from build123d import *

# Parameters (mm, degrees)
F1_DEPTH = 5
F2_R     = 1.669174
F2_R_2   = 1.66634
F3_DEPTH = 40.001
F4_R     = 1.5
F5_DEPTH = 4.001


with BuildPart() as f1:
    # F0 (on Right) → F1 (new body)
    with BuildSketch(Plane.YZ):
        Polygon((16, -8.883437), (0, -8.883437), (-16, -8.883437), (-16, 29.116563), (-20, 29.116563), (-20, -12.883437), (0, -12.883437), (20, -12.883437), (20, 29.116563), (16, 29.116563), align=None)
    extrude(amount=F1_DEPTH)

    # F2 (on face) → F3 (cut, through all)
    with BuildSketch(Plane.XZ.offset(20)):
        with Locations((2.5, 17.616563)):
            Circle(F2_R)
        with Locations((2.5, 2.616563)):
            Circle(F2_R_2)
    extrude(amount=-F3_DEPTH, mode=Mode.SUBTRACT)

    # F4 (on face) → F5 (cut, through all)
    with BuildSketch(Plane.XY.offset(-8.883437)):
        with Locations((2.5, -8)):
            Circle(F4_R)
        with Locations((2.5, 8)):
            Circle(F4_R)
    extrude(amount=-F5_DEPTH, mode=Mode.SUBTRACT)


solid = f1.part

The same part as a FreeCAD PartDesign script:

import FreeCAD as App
import Part
import Sketcher


def add_polygon(sketch, points):
    """Adds a closed chain of lines whose ends are joined by coincident constraints."""
    first, n = sketch.GeometryCount, len(points)
    for a, b in zip(points, points[1:] + points[:1]):
        sketch.addGeometry(Part.LineSegment(App.Vector(*a, 0), App.Vector(*b, 0)), False)
    for i in range(n):
        sketch.addConstraint(Sketcher.Constraint("Coincident", first + i, 2, first + (i + 1) % n, 1))

doc = App.newDocument("Part")
params = doc.addObject("Spreadsheet::Sheet", "Params")
for row, (alias, value) in enumerate([
    ("sketch1_width", "32 mm"),
    ("sketch1_width2", "4 mm"),
    ("sketch1_height", "38 mm"),
    ("sketch1_height2", "42 mm"),
    ("pad1_length", "5 mm"),
    ("sketch3_diameter", "3 mm"),
], start=1):
    params.set(f"A{row}", alias)
    params.set(f"B{row}", "=" + value)
    params.setAlias(f"B{row}", alias)

body = doc.addObject("PartDesign::Body", "Body")

# Sketch on YZ plane
sketch1 = body.newObject("Sketcher::SketchObject", "Sketch")
sketch1.AttachmentSupport = (doc.getObject("YZ_Plane"), [""])
sketch1.MapMode = "FlatFace"
add_polygon(sketch1, [(16, -8.9), (-16, -8.9), (-16, 29.1), (-20, 29.1), (-20, -12.9), (20, -12.9), (20, 29.1), (16, 29.1)])  # lines 0-7
sketch1.addConstraint([
    Sketcher.Constraint("Horizontal", 0),
    Sketcher.Constraint("Vertical", 1),
    Sketcher.Constraint("Horizontal", 2),
    Sketcher.Constraint("Vertical", 3),
    Sketcher.Constraint("Horizontal", 4),
    Sketcher.Constraint("Vertical", 5),
    Sketcher.Constraint("Horizontal", 6),
    Sketcher.Constraint("Vertical", 7),
    Sketcher.Constraint("Symmetric", 2, 2, 5, 2, -2),
    Sketcher.Constraint("Equal", 2, 6),
    Sketcher.Constraint("DistanceX", 0, 2, 0, 1, 32.0),
    Sketcher.Constraint("DistanceX", 2, 2, 2, 1, 4.0),
    Sketcher.Constraint("DistanceY", 1, 1, 1, 2, 38.0),
    Sketcher.Constraint("DistanceY", 3, 2, 3, 1, 42.0),
    Sketcher.Constraint("DistanceY", 0, 2, -1, 1, 8.883437),
])
sketch1.setExpression("Constraints[18]", "Params.sketch1_width")
sketch1.setExpression("Constraints[19]", "Params.sketch1_width2")
sketch1.setExpression("Constraints[20]", "Params.sketch1_height")
sketch1.setExpression("Constraints[21]", "Params.sketch1_height2")
pad1 = body.newObject("PartDesign::Pad", "Pad")
pad1.Profile = sketch1
pad1.setExpression("Length", "Params.pad1_length")

# Sketch on XZ plane
sketch2 = body.newObject("Sketcher::SketchObject", "Sketch001")
sketch2.AttachmentSupport = (doc.getObject("XZ_Plane"), [""])
sketch2.MapMode = "FlatFace"
sketch2.AttachmentOffset = App.Placement(App.Vector(0, 0, 20), App.Rotation())
sketch2.addGeometry([
    Part.Circle(App.Vector(2.5, 17.6, 0), App.Vector(0, 0, 1), 1.7),
    Part.Circle(App.Vector(2.5, 2.6, 0), App.Vector(0, 0, 1), 1.7),
], False)
sketch2.addConstraint([
    Sketcher.Constraint("Vertical", 0, 3, 1, 3),
    Sketcher.Constraint("DistanceY", 1, 3, 0, 3, 15.0),
    Sketcher.Constraint("DistanceX", -1, 1, 0, 3, 2.5),
    Sketcher.Constraint("Diameter", 1, 3.33268),
    Sketcher.Constraint("Diameter", 0, 3.338348),
    Sketcher.Constraint("DistanceY", -1, 1, 0, 3, 17.616563),
])
pocket1 = body.newObject("PartDesign::Pocket", "Pocket")
pocket1.Profile = sketch2
pocket1.Type = "ThroughAll"

# Sketch on XY plane
sketch3 = body.newObject("Sketcher::SketchObject", "Sketch002")
sketch3.AttachmentSupport = (doc.getObject("XY_Plane"), [""])
sketch3.MapMode = "FlatFace"
sketch3.AttachmentOffset = App.Placement(App.Vector(0, 0, -8.883437), App.Rotation())
sketch3.addGeometry([
    Part.Circle(App.Vector(2.5, -8, 0), App.Vector(0, 0, 1), 1.5),
    Part.Circle(App.Vector(2.5, 8, 0), App.Vector(0, 0, 1), 1.5),
], False)
sketch3.addConstraint([
    Sketcher.Constraint("Equal", 0, 1),
    Sketcher.Constraint("Symmetric", 0, 3, 1, 3, -1),
    Sketcher.Constraint("Diameter", 0, 3.0),
    Sketcher.Constraint("DistanceY", 0, 3, -1, 1, 8.0),
    Sketcher.Constraint("DistanceX", -1, 1, 0, 3, 2.5),
])
sketch3.setExpression("Constraints[2]", "Params.sketch3_diameter")
pocket2 = body.newObject("PartDesign::Pocket", "Pocket001")
pocket2.Profile = sketch3
pocket2.Type = "ThroughAll"

doc.recompute()
